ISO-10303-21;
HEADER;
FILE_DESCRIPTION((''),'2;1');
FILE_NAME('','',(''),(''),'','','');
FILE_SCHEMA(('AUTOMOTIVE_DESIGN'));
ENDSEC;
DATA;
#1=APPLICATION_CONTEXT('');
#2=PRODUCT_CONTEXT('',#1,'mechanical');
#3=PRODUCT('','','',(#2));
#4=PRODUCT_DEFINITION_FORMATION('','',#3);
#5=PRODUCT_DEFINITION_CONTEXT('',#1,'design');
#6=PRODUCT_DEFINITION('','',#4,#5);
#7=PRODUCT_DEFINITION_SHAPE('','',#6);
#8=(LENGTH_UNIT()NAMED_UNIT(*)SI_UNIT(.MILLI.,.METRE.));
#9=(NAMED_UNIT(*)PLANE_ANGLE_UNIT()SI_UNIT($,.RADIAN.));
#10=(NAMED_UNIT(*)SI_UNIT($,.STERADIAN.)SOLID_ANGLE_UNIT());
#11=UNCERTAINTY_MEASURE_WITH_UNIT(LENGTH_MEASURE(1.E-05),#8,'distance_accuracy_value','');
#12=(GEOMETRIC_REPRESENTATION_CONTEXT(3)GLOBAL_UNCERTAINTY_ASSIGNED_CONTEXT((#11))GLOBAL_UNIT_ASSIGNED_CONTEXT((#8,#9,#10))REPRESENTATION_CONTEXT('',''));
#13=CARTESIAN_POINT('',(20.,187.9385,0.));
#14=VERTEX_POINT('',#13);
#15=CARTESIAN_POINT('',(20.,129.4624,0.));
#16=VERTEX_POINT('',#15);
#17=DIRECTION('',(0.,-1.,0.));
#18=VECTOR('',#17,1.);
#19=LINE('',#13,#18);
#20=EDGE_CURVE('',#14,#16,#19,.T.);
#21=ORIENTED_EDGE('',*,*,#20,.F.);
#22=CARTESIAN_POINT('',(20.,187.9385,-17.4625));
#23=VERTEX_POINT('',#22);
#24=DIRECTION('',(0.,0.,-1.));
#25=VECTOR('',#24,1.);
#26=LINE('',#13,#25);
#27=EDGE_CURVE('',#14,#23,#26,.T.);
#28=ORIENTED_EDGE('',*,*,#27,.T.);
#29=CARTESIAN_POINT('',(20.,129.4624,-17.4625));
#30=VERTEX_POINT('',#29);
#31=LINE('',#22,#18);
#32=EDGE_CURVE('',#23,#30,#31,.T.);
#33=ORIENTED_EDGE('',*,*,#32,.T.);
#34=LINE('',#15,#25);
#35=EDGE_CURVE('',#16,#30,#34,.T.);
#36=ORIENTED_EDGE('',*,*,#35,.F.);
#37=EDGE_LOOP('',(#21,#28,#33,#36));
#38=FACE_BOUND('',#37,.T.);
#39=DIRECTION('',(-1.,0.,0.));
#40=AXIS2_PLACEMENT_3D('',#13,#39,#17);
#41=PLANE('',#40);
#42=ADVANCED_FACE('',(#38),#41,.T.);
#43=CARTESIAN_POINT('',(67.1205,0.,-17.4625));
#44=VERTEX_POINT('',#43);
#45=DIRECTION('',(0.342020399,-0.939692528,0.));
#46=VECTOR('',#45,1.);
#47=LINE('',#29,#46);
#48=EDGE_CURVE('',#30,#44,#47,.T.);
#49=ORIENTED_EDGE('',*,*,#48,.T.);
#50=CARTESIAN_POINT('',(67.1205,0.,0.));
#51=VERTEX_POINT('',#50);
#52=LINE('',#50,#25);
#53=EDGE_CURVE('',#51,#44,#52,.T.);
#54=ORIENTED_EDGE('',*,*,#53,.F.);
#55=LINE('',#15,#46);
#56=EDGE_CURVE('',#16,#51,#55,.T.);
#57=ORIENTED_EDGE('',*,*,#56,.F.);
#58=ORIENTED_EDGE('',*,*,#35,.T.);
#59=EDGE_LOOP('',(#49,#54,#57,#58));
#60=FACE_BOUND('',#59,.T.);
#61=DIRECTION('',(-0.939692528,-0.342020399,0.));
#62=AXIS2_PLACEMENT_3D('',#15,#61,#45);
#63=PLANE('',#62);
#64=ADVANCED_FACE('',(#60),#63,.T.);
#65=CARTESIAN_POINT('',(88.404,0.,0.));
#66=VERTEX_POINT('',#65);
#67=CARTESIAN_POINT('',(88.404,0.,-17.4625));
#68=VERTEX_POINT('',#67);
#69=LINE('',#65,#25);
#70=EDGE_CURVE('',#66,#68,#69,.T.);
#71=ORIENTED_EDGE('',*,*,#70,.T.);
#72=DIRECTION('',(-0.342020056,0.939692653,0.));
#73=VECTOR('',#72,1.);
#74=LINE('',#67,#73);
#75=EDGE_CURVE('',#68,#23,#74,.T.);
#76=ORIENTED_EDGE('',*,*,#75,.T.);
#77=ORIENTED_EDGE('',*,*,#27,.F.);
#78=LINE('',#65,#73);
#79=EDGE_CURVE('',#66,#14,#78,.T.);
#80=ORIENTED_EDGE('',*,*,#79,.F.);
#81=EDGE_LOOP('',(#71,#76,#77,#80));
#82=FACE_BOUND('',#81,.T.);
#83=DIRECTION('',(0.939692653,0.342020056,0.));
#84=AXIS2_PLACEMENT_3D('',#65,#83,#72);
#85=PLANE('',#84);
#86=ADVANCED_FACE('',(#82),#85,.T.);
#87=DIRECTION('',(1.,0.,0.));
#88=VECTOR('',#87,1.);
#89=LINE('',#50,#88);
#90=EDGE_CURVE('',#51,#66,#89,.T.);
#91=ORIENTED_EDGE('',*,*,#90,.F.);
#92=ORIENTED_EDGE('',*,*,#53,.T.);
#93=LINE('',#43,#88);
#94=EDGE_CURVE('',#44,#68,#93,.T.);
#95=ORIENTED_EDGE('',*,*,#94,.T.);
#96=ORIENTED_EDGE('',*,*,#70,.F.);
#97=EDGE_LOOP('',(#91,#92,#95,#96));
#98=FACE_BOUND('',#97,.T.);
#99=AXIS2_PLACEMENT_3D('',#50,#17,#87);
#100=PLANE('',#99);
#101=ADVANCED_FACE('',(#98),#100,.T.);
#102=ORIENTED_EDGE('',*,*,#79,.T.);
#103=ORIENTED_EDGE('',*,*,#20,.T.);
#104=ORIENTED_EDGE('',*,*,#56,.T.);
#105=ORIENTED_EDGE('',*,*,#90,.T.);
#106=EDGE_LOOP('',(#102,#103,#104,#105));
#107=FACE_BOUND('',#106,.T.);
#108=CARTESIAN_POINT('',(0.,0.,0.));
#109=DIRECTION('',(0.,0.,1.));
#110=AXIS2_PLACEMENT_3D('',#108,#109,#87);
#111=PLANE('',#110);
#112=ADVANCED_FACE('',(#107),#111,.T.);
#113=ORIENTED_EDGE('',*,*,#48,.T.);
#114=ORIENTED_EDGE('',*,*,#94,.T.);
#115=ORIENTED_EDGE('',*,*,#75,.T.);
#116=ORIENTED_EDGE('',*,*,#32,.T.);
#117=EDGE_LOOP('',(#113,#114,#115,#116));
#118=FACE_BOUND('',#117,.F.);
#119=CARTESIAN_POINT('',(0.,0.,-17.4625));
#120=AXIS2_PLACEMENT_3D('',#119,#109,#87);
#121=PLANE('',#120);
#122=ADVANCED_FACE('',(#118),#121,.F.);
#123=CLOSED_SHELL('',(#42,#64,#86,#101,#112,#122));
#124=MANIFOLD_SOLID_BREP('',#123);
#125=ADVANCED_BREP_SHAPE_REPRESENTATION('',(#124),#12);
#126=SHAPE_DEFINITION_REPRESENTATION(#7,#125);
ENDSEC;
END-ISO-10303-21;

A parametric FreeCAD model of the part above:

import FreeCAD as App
import Part
import Sketcher
Q = App.Units.Quantity

doc = App.newDocument("Part")
params = doc.addObject("Spreadsheet::Sheet", "Params")
for row, (alias, value) in enumerate([
    ("sketch1_length", "200 mm"),
    ("pad1_length", "17.4625 mm"),
], start=1):
    params.set(f"A{row}", alias)
    params.set(f"B{row}", "=" + value)
    params.setAlias(f"B{row}", alias)

body = doc.addObject("PartDesign::Body", "Body")

# Sketch on XY plane
sketch1 = body.newObject("Sketcher::SketchObject", "Sketch")
sketch1.AttachmentSupport = (doc.getObject("XY_Plane"), [""])
sketch1.MapMode = "FlatFace"
sketch1.addGeometry([
    Part.LineSegment(App.Vector(20, 129, 0), App.Vector(67, 0, 0)),
    Part.LineSegment(App.Vector(67, 0, 0), App.Vector(88, 0, 0)),
    Part.LineSegment(App.Vector(88, 0, 0), App.Vector(20, 188, 0)),
    Part.LineSegment(App.Vector(20, 188, 0), App.Vector(20, 129, 0)),
], False)
sketch1.addConstraint([
    Sketcher.Constraint("Coincident", 0, 2, 1, 1),
    Sketcher.Constraint("Coincident", 1, 2, 2, 1),
    Sketcher.Constraint("Coincident", 2, 2, 3, 1),
    Sketcher.Constraint("Coincident", 3, 2, 0, 1),
    Sketcher.Constraint("Horizontal", 1),
    Sketcher.Constraint("Vertical", 3),
    Sketcher.Constraint("PointOnObject", 0, 2, -1),
    Sketcher.Constraint("Parallel", 0, 2),
    Sketcher.Constraint("Angle", 0, Q("-70 deg")),
    Sketcher.Constraint("Distance", 2, 200.0),
    Sketcher.Constraint("DistanceX", -1, 1, 2, 2, 20.0),
    Sketcher.Constraint("DistanceY", 3, 2, 3, 1, 58.476),
])
sketch1.setExpression("Constraints[9]", "Params.sketch1_length")
pad1 = body.newObject("PartDesign::Pad", "Pad")
pad1.Profile = sketch1
pad1.setExpression("Length", "Params.pad1_length")
pad1.Reversed = True

doc.recompute()
